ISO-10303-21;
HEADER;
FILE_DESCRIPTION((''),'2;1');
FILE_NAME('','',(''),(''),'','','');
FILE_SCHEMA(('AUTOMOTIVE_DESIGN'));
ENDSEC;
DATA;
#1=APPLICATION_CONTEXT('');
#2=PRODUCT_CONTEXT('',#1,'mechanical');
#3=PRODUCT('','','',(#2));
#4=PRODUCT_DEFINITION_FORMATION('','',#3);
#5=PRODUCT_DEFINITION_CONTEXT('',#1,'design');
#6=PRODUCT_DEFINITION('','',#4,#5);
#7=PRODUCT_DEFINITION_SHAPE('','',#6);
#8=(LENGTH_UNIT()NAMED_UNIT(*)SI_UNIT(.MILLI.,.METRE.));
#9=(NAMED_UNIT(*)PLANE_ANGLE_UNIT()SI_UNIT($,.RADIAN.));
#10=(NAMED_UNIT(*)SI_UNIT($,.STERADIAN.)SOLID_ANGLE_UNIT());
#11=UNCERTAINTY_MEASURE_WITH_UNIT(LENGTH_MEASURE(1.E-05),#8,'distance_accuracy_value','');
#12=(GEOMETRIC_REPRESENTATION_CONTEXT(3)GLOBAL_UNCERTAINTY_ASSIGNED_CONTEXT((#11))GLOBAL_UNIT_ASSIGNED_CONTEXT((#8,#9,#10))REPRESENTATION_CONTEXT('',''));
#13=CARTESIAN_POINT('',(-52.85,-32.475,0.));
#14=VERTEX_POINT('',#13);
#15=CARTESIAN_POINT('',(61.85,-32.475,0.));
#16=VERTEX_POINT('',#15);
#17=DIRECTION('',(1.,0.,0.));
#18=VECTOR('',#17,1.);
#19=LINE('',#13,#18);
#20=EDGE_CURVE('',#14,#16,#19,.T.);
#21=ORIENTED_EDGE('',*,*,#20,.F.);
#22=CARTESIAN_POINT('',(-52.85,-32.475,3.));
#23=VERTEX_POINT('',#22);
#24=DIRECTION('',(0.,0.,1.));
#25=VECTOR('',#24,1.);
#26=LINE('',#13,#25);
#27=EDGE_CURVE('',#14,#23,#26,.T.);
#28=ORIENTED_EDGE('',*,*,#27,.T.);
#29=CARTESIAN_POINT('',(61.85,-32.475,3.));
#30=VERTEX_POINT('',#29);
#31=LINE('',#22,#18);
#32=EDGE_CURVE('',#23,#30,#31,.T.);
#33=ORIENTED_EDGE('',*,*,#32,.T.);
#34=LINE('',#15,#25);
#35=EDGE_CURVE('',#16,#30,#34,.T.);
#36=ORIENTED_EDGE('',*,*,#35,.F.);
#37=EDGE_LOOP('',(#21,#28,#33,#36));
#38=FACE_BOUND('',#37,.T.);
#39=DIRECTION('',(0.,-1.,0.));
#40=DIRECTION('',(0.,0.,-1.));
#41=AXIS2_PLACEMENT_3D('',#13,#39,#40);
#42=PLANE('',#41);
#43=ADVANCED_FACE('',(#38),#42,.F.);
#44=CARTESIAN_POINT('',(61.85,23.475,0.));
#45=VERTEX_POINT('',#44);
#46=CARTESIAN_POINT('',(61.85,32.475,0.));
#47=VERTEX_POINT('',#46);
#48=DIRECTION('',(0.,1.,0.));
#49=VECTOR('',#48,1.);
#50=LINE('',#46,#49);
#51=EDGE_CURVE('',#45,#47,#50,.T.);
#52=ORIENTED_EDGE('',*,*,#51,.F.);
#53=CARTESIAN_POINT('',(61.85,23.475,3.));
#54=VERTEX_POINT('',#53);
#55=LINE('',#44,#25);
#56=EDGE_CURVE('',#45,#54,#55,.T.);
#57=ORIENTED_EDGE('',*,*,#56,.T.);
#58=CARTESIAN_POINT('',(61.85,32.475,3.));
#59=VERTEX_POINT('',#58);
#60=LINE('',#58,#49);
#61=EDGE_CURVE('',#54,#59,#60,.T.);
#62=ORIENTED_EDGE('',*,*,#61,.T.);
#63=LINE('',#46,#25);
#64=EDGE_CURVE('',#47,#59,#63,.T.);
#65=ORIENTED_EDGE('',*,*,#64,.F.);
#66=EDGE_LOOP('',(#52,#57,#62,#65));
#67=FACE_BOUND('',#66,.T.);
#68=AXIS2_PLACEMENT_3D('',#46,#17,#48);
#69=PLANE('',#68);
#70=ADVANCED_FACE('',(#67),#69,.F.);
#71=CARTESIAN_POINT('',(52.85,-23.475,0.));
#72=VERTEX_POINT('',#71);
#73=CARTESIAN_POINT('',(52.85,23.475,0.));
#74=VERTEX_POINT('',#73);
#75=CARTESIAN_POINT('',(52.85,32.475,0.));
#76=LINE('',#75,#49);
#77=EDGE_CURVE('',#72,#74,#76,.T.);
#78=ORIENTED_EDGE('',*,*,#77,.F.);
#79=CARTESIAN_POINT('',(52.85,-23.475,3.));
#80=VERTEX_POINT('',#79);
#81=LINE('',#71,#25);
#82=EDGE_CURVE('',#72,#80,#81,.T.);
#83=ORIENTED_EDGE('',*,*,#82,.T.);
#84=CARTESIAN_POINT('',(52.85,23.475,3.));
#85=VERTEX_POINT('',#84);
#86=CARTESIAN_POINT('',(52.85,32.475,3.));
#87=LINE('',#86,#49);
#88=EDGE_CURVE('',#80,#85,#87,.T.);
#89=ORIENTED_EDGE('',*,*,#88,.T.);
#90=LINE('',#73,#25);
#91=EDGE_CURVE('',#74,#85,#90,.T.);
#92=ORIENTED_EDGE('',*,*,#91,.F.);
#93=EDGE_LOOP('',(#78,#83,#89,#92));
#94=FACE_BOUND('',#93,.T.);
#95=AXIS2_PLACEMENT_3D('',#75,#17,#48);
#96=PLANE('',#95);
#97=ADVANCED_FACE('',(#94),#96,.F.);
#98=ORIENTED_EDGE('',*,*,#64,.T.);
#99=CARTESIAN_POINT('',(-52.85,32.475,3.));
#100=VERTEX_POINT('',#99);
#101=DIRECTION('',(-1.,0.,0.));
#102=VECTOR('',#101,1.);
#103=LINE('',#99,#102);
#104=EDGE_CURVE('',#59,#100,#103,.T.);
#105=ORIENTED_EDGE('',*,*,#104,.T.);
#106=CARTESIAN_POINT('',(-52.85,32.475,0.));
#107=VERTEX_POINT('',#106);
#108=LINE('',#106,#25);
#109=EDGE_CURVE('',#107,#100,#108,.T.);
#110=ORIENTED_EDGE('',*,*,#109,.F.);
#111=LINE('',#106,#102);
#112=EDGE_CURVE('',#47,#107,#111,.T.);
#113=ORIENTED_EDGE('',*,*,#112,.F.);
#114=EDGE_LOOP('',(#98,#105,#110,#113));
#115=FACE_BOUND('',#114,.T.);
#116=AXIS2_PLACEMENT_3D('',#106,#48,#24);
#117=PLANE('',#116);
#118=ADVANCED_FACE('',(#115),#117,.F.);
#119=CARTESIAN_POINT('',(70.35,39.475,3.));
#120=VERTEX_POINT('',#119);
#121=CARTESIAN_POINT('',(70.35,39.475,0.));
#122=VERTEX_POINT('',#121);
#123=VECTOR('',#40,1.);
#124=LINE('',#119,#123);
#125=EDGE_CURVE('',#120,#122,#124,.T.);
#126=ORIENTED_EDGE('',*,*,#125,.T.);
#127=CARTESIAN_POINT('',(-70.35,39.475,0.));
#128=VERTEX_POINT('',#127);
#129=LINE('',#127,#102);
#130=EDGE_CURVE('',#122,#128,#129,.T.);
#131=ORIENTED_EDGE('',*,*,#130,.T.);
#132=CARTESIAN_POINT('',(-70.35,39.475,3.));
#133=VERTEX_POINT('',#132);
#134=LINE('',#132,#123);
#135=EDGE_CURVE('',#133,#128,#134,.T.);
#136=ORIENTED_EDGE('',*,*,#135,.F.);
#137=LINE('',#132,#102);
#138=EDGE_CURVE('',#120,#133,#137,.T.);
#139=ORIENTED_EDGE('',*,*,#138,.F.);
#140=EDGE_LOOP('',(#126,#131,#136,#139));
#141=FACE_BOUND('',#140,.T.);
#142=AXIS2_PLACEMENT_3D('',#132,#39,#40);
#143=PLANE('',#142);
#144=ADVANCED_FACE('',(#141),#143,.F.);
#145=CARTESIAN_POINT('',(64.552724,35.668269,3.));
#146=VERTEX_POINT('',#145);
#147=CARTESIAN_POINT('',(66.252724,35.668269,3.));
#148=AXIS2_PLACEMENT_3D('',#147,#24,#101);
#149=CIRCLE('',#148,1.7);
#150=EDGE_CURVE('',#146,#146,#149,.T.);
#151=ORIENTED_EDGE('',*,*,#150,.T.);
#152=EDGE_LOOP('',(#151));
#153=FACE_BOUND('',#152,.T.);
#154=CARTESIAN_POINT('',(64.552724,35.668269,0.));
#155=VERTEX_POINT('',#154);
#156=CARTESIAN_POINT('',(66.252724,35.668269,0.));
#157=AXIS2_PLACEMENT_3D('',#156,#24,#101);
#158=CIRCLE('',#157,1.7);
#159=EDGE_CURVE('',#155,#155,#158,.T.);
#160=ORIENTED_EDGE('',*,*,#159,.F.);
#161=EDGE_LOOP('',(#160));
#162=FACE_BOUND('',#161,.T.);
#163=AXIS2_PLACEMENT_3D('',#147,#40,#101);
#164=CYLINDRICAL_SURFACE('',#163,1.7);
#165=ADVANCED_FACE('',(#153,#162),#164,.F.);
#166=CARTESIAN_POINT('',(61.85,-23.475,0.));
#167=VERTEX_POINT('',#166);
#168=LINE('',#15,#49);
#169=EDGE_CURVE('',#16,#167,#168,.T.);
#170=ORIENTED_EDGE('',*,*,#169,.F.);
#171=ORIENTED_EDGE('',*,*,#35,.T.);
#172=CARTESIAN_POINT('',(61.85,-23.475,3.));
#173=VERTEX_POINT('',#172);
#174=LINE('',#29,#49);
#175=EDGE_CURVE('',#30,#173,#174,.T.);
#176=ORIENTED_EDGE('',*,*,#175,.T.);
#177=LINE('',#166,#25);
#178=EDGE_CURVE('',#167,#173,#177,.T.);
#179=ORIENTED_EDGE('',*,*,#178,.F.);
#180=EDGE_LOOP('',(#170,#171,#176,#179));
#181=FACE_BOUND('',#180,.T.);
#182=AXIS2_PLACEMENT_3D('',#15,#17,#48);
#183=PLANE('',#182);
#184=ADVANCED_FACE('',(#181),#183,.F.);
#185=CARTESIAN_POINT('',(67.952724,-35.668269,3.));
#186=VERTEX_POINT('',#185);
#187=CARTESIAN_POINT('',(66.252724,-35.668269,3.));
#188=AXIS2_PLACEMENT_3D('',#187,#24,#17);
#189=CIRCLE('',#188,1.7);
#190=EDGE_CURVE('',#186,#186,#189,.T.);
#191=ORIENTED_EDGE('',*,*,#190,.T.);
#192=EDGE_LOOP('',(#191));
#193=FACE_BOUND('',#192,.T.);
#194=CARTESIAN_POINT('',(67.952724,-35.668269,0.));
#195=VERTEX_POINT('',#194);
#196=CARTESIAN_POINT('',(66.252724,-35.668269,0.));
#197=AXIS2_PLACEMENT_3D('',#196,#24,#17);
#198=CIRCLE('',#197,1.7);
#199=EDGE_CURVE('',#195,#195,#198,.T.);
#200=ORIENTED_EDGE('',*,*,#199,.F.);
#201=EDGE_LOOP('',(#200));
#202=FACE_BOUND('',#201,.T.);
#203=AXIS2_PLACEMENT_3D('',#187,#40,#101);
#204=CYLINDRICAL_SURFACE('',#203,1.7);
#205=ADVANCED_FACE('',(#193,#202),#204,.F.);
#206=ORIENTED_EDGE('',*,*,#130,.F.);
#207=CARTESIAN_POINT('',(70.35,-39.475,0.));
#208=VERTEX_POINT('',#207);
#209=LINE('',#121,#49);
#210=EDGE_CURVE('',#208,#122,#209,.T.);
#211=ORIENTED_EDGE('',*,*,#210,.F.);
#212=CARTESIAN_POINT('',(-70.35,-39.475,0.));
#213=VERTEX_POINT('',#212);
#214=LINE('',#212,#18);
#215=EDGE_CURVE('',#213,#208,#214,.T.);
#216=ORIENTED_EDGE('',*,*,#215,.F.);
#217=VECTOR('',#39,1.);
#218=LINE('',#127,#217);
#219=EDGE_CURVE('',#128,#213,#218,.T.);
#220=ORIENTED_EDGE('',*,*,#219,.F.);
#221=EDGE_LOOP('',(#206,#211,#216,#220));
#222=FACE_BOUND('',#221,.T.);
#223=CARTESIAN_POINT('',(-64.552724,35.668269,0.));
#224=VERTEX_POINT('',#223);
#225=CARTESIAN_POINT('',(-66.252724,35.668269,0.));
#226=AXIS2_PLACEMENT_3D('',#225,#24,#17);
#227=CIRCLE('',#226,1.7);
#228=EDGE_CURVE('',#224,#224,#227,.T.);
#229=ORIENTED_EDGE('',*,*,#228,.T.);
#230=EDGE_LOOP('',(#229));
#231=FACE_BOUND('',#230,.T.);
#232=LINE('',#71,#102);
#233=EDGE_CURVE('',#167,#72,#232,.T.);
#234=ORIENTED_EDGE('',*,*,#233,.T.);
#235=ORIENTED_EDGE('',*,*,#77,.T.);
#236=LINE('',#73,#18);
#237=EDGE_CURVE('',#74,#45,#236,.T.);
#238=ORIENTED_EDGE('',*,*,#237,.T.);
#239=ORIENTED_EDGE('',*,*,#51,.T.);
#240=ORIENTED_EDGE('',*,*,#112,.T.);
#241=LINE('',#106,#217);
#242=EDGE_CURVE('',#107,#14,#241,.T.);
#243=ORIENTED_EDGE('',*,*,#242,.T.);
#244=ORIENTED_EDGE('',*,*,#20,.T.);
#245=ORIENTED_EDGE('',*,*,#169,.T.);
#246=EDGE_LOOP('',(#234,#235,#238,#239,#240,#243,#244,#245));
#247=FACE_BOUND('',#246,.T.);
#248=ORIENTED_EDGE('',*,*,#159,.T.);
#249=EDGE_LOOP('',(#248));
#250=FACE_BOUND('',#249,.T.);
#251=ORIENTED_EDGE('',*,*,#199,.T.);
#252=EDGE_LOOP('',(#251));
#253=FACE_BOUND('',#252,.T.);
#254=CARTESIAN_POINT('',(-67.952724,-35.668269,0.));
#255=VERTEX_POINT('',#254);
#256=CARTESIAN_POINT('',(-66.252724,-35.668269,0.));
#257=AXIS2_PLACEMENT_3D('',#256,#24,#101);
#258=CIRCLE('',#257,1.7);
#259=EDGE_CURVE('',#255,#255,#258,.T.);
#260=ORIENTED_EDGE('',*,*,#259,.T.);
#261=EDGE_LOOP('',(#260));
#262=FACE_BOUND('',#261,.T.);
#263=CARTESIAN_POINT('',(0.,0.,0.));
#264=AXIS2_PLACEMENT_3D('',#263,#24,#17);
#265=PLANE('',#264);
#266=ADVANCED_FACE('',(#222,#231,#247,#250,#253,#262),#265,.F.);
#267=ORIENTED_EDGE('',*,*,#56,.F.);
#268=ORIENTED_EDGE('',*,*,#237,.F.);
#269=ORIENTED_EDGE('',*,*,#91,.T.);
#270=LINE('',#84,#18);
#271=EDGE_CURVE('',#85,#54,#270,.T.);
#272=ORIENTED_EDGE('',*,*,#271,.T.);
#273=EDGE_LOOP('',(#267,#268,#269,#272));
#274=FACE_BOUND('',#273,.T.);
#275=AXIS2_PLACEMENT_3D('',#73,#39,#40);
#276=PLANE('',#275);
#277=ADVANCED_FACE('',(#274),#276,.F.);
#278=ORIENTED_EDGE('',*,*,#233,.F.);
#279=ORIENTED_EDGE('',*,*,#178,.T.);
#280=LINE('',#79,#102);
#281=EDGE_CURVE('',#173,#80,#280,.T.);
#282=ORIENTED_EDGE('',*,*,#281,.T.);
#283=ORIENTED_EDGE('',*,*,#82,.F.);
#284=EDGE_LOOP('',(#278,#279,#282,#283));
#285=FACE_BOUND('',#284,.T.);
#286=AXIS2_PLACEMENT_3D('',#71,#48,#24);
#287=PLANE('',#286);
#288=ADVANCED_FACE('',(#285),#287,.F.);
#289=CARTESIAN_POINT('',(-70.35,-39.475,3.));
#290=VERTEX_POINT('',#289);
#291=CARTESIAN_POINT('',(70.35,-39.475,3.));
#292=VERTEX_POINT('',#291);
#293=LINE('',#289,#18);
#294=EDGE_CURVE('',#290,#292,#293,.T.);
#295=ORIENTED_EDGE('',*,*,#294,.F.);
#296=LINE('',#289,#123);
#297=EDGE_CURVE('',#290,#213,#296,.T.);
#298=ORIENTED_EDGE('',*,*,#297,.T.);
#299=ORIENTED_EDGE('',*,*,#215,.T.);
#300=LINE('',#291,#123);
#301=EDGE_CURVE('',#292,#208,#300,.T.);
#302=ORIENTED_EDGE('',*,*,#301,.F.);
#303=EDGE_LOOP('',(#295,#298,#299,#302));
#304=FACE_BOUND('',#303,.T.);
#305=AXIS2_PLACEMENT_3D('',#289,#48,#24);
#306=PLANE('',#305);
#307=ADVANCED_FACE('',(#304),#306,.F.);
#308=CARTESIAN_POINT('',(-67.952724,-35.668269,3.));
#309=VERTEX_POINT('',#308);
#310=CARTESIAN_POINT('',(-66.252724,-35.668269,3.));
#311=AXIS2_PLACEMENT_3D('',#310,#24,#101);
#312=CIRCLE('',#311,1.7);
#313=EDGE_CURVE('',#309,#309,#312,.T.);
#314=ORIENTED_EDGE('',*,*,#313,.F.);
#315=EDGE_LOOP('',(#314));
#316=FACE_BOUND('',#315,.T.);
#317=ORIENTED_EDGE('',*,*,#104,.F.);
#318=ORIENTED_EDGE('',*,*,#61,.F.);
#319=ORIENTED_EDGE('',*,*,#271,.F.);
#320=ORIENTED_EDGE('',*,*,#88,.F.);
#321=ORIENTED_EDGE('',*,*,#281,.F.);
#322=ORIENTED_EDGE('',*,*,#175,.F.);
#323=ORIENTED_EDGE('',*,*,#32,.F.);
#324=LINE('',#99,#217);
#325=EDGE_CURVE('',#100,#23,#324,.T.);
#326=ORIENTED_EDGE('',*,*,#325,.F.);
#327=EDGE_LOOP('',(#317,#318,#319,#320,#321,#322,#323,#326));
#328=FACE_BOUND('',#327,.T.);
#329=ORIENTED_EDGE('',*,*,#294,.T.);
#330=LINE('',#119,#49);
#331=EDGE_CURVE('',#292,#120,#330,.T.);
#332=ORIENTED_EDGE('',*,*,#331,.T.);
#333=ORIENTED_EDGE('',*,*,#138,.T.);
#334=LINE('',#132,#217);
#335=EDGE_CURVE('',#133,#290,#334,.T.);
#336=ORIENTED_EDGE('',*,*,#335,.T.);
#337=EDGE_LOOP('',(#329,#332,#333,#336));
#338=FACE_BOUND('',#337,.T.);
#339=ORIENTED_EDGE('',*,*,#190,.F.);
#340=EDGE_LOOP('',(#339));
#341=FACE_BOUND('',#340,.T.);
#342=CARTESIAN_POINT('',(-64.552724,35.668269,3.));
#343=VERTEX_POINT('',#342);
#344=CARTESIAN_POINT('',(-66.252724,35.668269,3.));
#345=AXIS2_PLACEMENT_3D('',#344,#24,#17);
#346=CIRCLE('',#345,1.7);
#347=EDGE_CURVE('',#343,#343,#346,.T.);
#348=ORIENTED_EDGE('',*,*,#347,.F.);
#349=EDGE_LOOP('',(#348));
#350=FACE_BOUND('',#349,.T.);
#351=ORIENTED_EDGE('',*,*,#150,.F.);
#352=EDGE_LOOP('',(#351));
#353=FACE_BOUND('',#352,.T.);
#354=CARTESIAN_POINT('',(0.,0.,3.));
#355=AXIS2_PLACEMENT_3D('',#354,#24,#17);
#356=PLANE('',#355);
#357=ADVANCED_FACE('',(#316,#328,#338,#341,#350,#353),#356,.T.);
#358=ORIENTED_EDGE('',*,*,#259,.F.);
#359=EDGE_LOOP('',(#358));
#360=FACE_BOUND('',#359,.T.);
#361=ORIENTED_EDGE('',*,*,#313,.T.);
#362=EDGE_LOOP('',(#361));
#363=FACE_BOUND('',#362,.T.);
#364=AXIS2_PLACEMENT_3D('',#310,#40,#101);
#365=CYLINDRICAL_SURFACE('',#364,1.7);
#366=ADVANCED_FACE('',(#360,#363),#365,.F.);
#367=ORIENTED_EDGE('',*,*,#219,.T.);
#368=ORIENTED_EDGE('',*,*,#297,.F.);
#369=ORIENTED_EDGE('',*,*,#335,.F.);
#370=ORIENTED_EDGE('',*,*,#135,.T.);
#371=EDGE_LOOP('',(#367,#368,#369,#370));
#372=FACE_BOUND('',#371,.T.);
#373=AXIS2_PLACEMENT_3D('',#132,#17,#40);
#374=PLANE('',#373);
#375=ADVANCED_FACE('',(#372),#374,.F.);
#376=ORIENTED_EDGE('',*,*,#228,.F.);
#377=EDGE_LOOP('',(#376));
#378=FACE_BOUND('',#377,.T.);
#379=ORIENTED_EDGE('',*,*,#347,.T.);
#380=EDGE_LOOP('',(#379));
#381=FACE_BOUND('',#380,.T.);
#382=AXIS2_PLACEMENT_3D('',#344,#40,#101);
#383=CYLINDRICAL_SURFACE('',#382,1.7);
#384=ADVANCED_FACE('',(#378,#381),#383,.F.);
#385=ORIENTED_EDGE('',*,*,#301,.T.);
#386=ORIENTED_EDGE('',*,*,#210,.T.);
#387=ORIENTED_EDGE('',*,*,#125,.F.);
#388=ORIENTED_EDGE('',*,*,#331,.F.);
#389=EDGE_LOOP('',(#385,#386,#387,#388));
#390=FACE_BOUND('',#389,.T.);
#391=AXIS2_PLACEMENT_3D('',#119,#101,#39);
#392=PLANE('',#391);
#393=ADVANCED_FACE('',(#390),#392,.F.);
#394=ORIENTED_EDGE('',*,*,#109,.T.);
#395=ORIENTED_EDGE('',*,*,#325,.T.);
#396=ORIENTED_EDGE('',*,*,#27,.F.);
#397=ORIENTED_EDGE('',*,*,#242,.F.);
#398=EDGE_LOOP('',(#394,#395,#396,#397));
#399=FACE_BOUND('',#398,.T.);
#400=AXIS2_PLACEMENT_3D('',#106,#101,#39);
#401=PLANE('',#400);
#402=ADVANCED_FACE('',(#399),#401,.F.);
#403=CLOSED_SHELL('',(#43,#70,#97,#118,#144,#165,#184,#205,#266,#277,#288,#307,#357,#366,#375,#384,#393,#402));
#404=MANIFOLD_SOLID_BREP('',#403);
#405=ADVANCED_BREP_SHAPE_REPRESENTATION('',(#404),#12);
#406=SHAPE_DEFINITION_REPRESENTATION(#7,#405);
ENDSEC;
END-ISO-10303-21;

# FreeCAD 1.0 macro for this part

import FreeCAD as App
import Part
import Sketcher
Q = App.Units.Quantity

doc = App.newDocument("Part")
body = doc.addObject("PartDesign::Body", "Body")

# Sketch on XY plane
sketch1 = body.newObject("Sketcher::SketchObject", "Sketch")
sketch1.AttachmentSupport = (doc.getObject("XY_Plane"), [""])
sketch1.MapMode = "FlatFace"
sketch1.addGeometry([
    Part.LineSegment(App.Vector(-70.3, 39.5, 0), App.Vector(-70.3, -39.5, 0)),  # 0
    Part.LineSegment(App.Vector(-70.3, -39.5, 0), App.Vector(70.3, -39.5, 0)),  # 1
    Part.LineSegment(App.Vector(70.3, -39.5, 0), App.Vector(70.3, 39.5, 0)),  # 2
    Part.LineSegment(App.Vector(70.3, 39.5, 0), App.Vector(-70.3, 39.5, 0)),  # 3
    Part.Circle(App.Vector(-66.3, -35.7, 0), App.Vector(0, 0, 1), 1.7),  # 4
    Part.Circle(App.Vector(66.3, -35.7, 0), App.Vector(0, 0, 1), 1.7),  # 5
    Part.Circle(App.Vector(-66.3, 35.7, 0), App.Vector(0, 0, 1), 1.7),  # 6
    Part.Circle(App.Vector(66.3, 35.7, 0), App.Vector(0, 0, 1), 1.7),  # 7
], False)
sketch1.addConstraint([
    Sketcher.Constraint("Coincident", 0, 2, 1, 1),
    Sketcher.Constraint("Coincident", 1, 2, 2, 1),
    Sketcher.Constraint("Coincident", 2, 2, 3, 1),
    Sketcher.Constraint("Coincident", 3, 2, 0, 1),
    Sketcher.Constraint("Vertical", 0),
    Sketcher.Constraint("Horizontal", 1),
    Sketcher.Constraint("Vertical", 2),
    Sketcher.Constraint("Horizontal", 3),
    Sketcher.Constraint("Equal", 4, 5),
    Sketcher.Constraint("Equal", 5, 6),
    Sketcher.Constraint("Equal", 6, 7),
    Sketcher.Constraint("Symmetric", 5, 3, 6, 3, -1, 1),
    Sketcher.Constraint("Symmetric", 4, 3, 7, 3, -1, 1),
    Sketcher.Constraint("Symmetric", 0, 2, 2, 2, -1, 1),
    Sketcher.Constraint("Symmetric", 4, 3, 5, 3, -2),
    Sketcher.Constraint("Diameter", 4, Q("3.4 mm")),
    Sketcher.Constraint("DistanceX", 1, 1, 1, 2, Q("140.7 mm")),
    Sketcher.Constraint("DistanceY", 0, 2, 0, 1, Q("78.95 mm")),
    Sketcher.Constraint("DistanceY", 4, 3, -1, 1, Q("35.668269 mm")),
    Sketcher.Constraint("DistanceX", 4, 3, -1, 1, Q("66.252724 mm")),
])
pad1 = body.newObject("PartDesign::Pad", "Pad")
pad1.Profile = sketch1
pad1.Length = 3

# Sketch on XY plane
sketch2 = body.newObject("Sketcher::SketchObject", "Sketch001")
sketch2.AttachmentSupport = (doc.getObject("XY_Plane"), [""])
sketch2.MapMode = "FlatFace"
sketch2.AttachmentOffset = App.Placement(App.Vector(0, 0, 3), App.Rotation())
sketch2.addGeometry([
    Part.LineSegment(App.Vector(-53, 32, 0), App.Vector(-53, -32, 0)),
    Part.LineSegment(App.Vector(-53, -32, 0), App.Vector(53, -32, 0)),
    Part.LineSegment(App.Vector(53, -32, 0), App.Vector(53, 32, 0)),
    Part.LineSegment(App.Vector(53, 32, 0), App.Vector(-53, 32, 0)),
], False)
sketch2.addConstraint([
    Sketcher.Constraint("Coincident", 0, 2, 1, 1),
    Sketcher.Constraint("Coincident", 1, 2, 2, 1),
    Sketcher.Constraint("Coincident", 2, 2, 3, 1),
    Sketcher.Constraint("Coincident", 3, 2, 0, 1),
    Sketcher.Constraint("Vertical", 0),
    Sketcher.Constraint("Horizontal", 1),
    Sketcher.Constraint("Vertical", 2),
    Sketcher.Constraint("Horizontal", 3),
    Sketcher.Constraint("Symmetric", 0, 2, 2, 2, -1, 1),
    Sketcher.Constraint("DistanceX", 1, 1, 1, 2, Q("105.7 mm")),
    Sketcher.Constraint("DistanceY", 0, 2, 0, 1, Q("64.95 mm")),
])
pocket1 = body.newObject("PartDesign::Pocket", "Pocket")
pocket1.Profile = sketch2
pocket1.Type = "ThroughAll"

# Sketch on XY plane
sketch3 = body.newObject("Sketcher::SketchObject", "Sketch002")
sketch3.AttachmentSupport = (doc.getObject("XY_Plane"), [""])
sketch3.MapMode = "FlatFace"
sketch3.AttachmentOffset = App.Placement(App.Vector(0, 0, 3), App.Rotation())
sketch3.addGeometry([
    Part.LineSegment(App.Vector(53, 32, 0), App.Vector(53, 23, 0)),  # 0
    Part.LineSegment(App.Vector(53, 23, 0), App.Vector(62, 23, 0)),  # 1
    Part.LineSegment(App.Vector(62, 23, 0), App.Vector(62, 32, 0)),  # 2
    Part.LineSegment(App.Vector(62, 32, 0), App.Vector(53, 32, 0)),  # 3
    Part.LineSegment(App.Vector(53, -23, 0), App.Vector(53, -32, 0)),  # 4
    Part.LineSegment(App.Vector(53, -32, 0), App.Vector(62, -32, 0)),  # 5
    Part.LineSegment(App.Vector(62, -32, 0), App.Vector(62, -23, 0)),  # 6
    Part.LineSegment(App.Vector(62, -23, 0), App.Vector(53, -23, 0)),  # 7
], False)
sketch3.addConstraint([
    Sketcher.Constraint("Coincident", 0, 2, 1, 1),
    Sketcher.Constraint("Coincident", 1, 2, 2, 1),
    Sketcher.Constraint("Coincident", 2, 2, 3, 1),
    Sketcher.Constraint("Coincident", 3, 2, 0, 1),
    Sketcher.Constraint("Coincident", 4, 2, 5, 1),
    Sketcher.Constraint("Coincident", 5, 2, 6, 1),
    Sketcher.Constraint("Coincident", 6, 2, 7, 1),
    Sketcher.Constraint("Coincident", 7, 2, 4, 1),
    Sketcher.Constraint("Vertical", 0),
    Sketcher.Constraint("Horizontal", 1),
    Sketcher.Constraint("Vertical", 2),
    Sketcher.Constraint("Horizontal", 3),
    Sketcher.Constraint("Vertical", 4),
    Sketcher.Constraint("Horizontal", 5),
    Sketcher.Constraint("Vertical", 6),
    Sketcher.Constraint("Horizontal", 7),
    Sketcher.Constraint("Symmetric", 3, 2, 4, 2, -1),
    Sketcher.Constraint("Symmetric", 1, 2, 6, 2, -1),
    Sketcher.Constraint("Equal", 7, 0),
    Sketcher.Constraint("DistanceX", 1, 1, 1, 2, Q("9 mm")),
    Sketcher.Constraint("DistanceX", -1, 1, 0, 2, Q("52.85 mm")),
    Sketcher.Constraint("DistanceY", 4, 2, 0, 2, Q("55.95 mm")),
])
pocket2 = body.newObject("PartDesign::Pocket", "Pocket001")
pocket2.Profile = sketch3
pocket2.Type = "ThroughAll"

doc.recompute()
